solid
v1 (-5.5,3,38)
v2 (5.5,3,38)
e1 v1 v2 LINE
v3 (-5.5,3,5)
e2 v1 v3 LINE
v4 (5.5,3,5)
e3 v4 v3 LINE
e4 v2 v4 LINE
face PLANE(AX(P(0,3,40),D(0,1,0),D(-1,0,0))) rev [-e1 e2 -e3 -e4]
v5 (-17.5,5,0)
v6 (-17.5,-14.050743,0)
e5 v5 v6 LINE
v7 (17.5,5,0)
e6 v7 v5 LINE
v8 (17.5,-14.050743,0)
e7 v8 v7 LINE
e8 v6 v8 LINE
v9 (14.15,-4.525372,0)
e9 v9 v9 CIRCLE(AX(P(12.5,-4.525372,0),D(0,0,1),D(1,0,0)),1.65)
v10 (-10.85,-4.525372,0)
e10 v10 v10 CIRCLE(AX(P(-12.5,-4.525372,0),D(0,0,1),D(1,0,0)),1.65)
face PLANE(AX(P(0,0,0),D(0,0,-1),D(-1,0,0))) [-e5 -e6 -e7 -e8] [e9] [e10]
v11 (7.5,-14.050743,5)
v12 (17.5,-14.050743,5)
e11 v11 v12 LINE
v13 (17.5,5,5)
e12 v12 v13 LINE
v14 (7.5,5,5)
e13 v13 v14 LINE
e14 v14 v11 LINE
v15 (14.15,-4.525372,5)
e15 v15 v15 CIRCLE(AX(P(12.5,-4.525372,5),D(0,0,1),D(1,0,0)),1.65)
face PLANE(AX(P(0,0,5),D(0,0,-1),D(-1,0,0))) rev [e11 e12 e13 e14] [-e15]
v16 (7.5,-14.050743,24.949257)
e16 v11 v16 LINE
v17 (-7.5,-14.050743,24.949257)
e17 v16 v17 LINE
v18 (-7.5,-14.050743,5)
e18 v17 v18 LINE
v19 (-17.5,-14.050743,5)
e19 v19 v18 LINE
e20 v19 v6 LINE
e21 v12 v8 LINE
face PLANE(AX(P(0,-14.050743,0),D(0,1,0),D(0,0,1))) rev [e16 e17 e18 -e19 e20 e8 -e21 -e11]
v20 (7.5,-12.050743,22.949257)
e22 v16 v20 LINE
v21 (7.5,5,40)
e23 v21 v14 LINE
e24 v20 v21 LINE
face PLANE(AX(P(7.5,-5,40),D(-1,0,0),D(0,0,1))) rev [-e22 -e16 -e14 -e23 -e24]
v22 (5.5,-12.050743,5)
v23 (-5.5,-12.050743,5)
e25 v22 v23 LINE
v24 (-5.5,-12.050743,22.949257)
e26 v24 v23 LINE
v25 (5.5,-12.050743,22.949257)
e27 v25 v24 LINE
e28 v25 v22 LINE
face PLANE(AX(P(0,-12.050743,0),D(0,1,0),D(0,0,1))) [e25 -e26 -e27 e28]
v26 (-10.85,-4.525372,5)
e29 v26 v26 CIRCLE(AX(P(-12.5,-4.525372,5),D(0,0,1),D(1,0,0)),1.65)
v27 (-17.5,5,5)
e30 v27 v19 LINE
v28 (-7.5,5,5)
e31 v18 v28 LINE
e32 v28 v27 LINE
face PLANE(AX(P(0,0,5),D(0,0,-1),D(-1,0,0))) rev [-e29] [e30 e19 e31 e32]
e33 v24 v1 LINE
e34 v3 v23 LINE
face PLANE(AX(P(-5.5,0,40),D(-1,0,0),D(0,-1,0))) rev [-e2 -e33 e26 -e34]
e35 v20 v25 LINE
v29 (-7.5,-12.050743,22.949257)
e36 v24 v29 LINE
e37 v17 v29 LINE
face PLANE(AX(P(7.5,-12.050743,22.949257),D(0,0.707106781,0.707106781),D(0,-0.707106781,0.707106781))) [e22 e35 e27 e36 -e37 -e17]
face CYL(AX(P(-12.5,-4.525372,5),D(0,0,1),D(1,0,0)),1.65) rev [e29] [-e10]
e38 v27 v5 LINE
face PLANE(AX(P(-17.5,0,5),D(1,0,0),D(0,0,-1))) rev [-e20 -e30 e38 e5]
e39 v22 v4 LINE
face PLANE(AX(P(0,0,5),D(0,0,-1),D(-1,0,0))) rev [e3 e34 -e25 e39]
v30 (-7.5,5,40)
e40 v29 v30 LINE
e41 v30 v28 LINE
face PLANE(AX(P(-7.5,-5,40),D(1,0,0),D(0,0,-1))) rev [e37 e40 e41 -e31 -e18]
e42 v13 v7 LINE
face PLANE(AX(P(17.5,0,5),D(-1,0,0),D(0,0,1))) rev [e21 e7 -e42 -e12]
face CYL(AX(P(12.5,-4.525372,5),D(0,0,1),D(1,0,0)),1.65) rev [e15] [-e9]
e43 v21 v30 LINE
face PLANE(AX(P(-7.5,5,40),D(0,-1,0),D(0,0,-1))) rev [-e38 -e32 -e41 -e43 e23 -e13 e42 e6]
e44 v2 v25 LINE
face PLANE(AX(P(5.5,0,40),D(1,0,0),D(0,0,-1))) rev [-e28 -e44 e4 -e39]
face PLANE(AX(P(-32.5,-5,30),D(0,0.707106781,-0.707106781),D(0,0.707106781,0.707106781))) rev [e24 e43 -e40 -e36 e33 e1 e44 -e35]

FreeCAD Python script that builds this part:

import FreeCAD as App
import Part
import Sketcher
from FreeCAD import Vector
Q = App.Units.Quantity


def add_polygon(sketch, points):
    """Adds a closed chain of lines whose ends are joined by coincident constraints."""
    first, n = sketch.GeometryCount, len(points)
    for a, b in zip(points, points[1:] + points[:1]):
        sketch.addGeometry(Part.LineSegment(App.Vector(*a, 0), App.Vector(*b, 0)), False)
    for i in range(n):
        sketch.addConstraint(Sketcher.Constraint("Coincident", first + i, 2, first + (i + 1) % n, 1))

doc = App.newDocument("Part")
body = doc.addObject("PartDesign::Body", "Body")

# Sketch on XY plane
sketch1 = doc.addObject("Sketcher::SketchObject", "Sketch")
body.addObject(sketch1)
sketch1.AttachmentSupport = (doc.XY_Plane, [""])
sketch1.MapMode = "FlatFace"
add_polygon(sketch1, [(-8, 5), (-8, -5), (8, -5), (8, 5)])  # lines 0-3
sketch1.addConstraint(Sketcher.Constraint("Vertical", 0))
sketch1.addConstraint(Sketcher.Constraint("Horizontal", 1))
sketch1.addConstraint(Sketcher.Constraint("Vertical", 2))
sketch1.addConstraint(Sketcher.Constraint("Horizontal", 3))
sketch1.addConstraint(Sketcher.Constraint("Symmetric", 0, 2, 2, 2, -1, 1))
sketch1.addConstraint(Sketcher.Constraint("DistanceX", 1, 1, 1, 2, Q("15 mm")))
sketch1.addConstraint(Sketcher.Constraint("DistanceY", 0, 2, 0, 1, Q("10 mm")))
pad1 = doc.addObject("PartDesign::Pad", "Pad")
body.addObject(pad1)
pad1.Profile = sketch1
pad1.Length = 40

# Sketch on YZ plane
sketch2 = doc.addObject("Sketcher::SketchObject", "Sketch001")
body.addObject(sketch2)
sketch2.AttachmentSupport = (doc.YZ_Plane, [""])
sketch2.MapMode = "FlatFace"
sketch2.AttachmentOffset = App.Placement(Vector(0, 0, 7.5), App.Rotation())
add_polygon(sketch2, [(5, 40), (-5, 40), (-5, 30)])  # lines 0-2
sketch2.addConstraint(Sketcher.Constraint("Horizontal", 0))
sketch2.addConstraint(Sketcher.Constraint("Vertical", 1))
sketch2.addConstraint(Sketcher.Constraint("Equal", 0, 1))
sketch2.addConstraint(Sketcher.Constraint("DistanceX", 0, 2, 0, 1, Q("10 mm")))
sketch2.addConstraint(Sketcher.Constraint("DistanceX", 0, 2, -1, 1, Q("5 mm")))
sketch2.addConstraint(Sketcher.Constraint("DistanceY", -1, 1, 0, 2, Q("40 mm")))
pocket1 = doc.addObject("PartDesign::Pocket", "Pocket")
body.addObject(pocket1)
pocket1.Profile = sketch2
pocket1.Length = 40

# Sketch on YZ plane
sketch3 = doc.addObject("Sketcher::SketchObject", "Sketch002")
body.addObject(sketch3)
sketch3.AttachmentSupport = (doc.YZ_Plane, [""])
sketch3.MapMode = "FlatFace"
sketch3.AttachmentOffset = App.Placement(Vector(0, 0, -7.5), App.Rotation())
add_polygon(sketch3, [(-5, 0), (-12, 0), (-12, 23), (-5, 30)])  # lines 0-3
sketch3.addConstraint(Sketcher.Constraint("Horizontal", 0))
sketch3.addConstraint(Sketcher.Constraint("Vertical", 1))
sketch3.addConstraint(Sketcher.Constraint("Vertical", 3))
sketch3.addConstraint(Sketcher.Constraint("PointOnObject", 0, 2, -1))
sketch3.addConstraint(Sketcher.Constraint("DistanceY", 3, 2, 3, 1, Q("30 mm")))
sketch3.addConstraint(Sketcher.Constraint("Angle", 2, Q("45 deg")))
sketch3.addConstraint(Sketcher.Constraint("DistanceX", 2, 2, -1, 1, Q("5 mm")))
sketch3.addConstraint(Sketcher.Constraint("DistanceX", 0, 2, 0, 1, Q("7.050743 mm")))
pad2 = doc.addObject("PartDesign::Pad", "Pad001")
body.addObject(pad2)
pad2.Profile = sketch3
pad2.Length = 15

# Sketch on XZ plane
sketch4 = doc.addObject("Sketcher::SketchObject", "Sketch003")
body.addObject(sketch4)
sketch4.AttachmentSupport = (doc.XZ_Plane, [""])
sketch4.MapMode = "FlatFace"
sketch4.AttachmentOffset = App.Placement(Vector(0, 0, 12.050743), App.Rotation())
add_polygon(sketch4, [(8, 0), (8, 24), (-8, 24), (-8, 0)])  # lines 0-3
sketch4.addConstraint(Sketcher.Constraint("Vertical", 0))
sketch4.addConstraint(Sketcher.Constraint("Horizontal", 1))
sketch4.addConstraint(Sketcher.Constraint("Vertical", 2))
sketch4.addConstraint(Sketcher.Constraint("Horizontal", 3))
sketch4.addConstraint(Sketcher.Constraint("Symmetric", 2, 2, 3, 2, -1, 1))
sketch4.addConstraint(Sketcher.Constraint("DistanceX", 1, 2, 1, 1, Q("15 mm")))
sketch4.addConstraint(Sketcher.Constraint("DistanceY", 0, 1, 0, 2, Q("24.5 mm")))
pad3 = doc.addObject("PartDesign::Pad", "Pad002")
body.addObject(pad3)
pad3.Profile = sketch4
pad3.Length = 2

# Sketch on XY plane
sketch5 = doc.addObject("Sketcher::SketchObject", "Sketch004")
body.addObject(sketch5)
sketch5.AttachmentSupport = (doc.XY_Plane, [""])
sketch5.MapMode = "FlatFace"
add_polygon(sketch5, [(6, 3), (6, -12), (-6, -12), (-6, 3)])  # lines 0-3
sketch5.addConstraint(Sketcher.Constraint("Vertical", 0))
sketch5.addConstraint(Sketcher.Constraint("Horizontal", 1))
sketch5.addConstraint(Sketcher.Constraint("Vertical", 2))
sketch5.addConstraint(Sketcher.Constraint("Horizontal", 3))
sketch5.addConstraint(Sketcher.Constraint("DistanceX", 1, 2, 1, 1, Q("11 mm")))
sketch5.addConstraint(Sketcher.Constraint("DistanceY", -1, 1, 2, 2, Q("3 mm")))
sketch5.addConstraint(Sketcher.Constraint("DistanceX", -1, 1, 0, 2, Q("5.5 mm")))
sketch5.addConstraint(Sketcher.Constraint("DistanceY", 0, 2, 0, 1, Q("15.050743 mm")))
pocket2 = doc.addObject("PartDesign::Pocket", "Pocket001")
body.addObject(pocket2)
pocket2.Profile = sketch5
pocket2.Type = "ThroughAll"
pocket2.Reversed = True

# Sketch on XY plane
sketch6 = doc.addObject("Sketcher::SketchObject", "Sketch005")
body.addObject(sketch6)
sketch6.AttachmentSupport = (doc.XY_Plane, [""])
sketch6.MapMode = "FlatFace"
add_polygon(sketch6, [(18, 5), (18, -14), (-18, -14), (-18, 5)])  # lines 0-3
sketch6.addConstraint(Sketcher.Constraint("Vertical", 0))
sketch6.addConstraint(Sketcher.Constraint("Horizontal", 1))
sketch6.addConstraint(Sketcher.Constraint("Vertical", 2))
sketch6.addConstraint(Sketcher.Constraint("Horizontal", 3))
sketch6.addConstraint(Sketcher.Constraint("DistanceX", 1, 2, 1, 1, Q("35 mm")))
sketch6.addConstraint(Sketcher.Constraint("DistanceY", -1, 1, 2, 2, Q("5 mm")))
sketch6.addConstraint(Sketcher.Constraint("DistanceX", -1, 1, 0, 2, Q("17.5 mm")))
sketch6.addConstraint(Sketcher.Constraint("DistanceY", 0, 2, 0, 1, Q("19.050743 mm")))
pad4 = doc.addObject("PartDesign::Pad", "Pad003")
body.addObject(pad4)
pad4.Profile = sketch6
pad4.Length = 5

# Sketch on XY plane
sketch7 = doc.addObject("Sketcher::SketchObject", "Sketch006")
body.addObject(sketch7)
sketch7.AttachmentSupport = (doc.XY_Plane, [""])
sketch7.MapMode = "FlatFace"
sketch7.AttachmentOffset = App.Placement(Vector(0, 0, 5), App.Rotation())
sketch7.addGeometry(Part.Circle(Vector(-12.5, -4.5, 0), Vector(0, 0, 1), 1.6), False)
sketch7.addConstraint(Sketcher.Constraint("Diameter", 0, Q("3.3 mm")))
sketch7.addConstraint(Sketcher.Constraint("DistanceX", 0, 3, -1, 1, Q("12.5 mm")))
sketch7.addConstraint(Sketcher.Constraint("DistanceY", 0, 3, -1, 1, Q("4.525372 mm")))
doc.recompute()
hole = doc.addObject("PartDesign::Hole", "Hole")
body.addObject(hole)
hole.Profile = sketch7
hole.ThreadType = "None"
hole.Diameter = 3.3
hole.DepthType = "ThroughAll"

# Sketch on XY plane
sketch8 = doc.addObject("Sketcher::SketchObject", "Sketch007")
body.addObject(sketch8)
sketch8.AttachmentSupport = (doc.XY_Plane, [""])
sketch8.MapMode = "FlatFace"
sketch8.AttachmentOffset = App.Placement(Vector(0, 0, 5), App.Rotation())
sketch8.addGeometry(Part.Circle(Vector(12.5, -4.5, 0), Vector(0, 0, 1), 1.6), False)
sketch8.addConstraint(Sketcher.Constraint("Diameter", 0, Q("3.3 mm")))
sketch8.addConstraint(Sketcher.Constraint("DistanceX", -1, 1, 0, 3, Q("12.5 mm")))
sketch8.addConstraint(Sketcher.Constraint("DistanceY", 0, 3, -1, 1, Q("4.525372 mm")))
doc.recompute()
hole2 = doc.addObject("PartDesign::Hole", "Hole001")
body.addObject(hole2)
hole2.Profile = sketch8
hole2.ThreadType = "None"
hole2.Diameter = 3.3
hole2.DepthType = "ThroughAll"

# Sketch on YZ plane
sketch9 = doc.addObject("Sketcher::SketchObject", "Sketch008")
body.addObject(sketch9)
sketch9.AttachmentSupport = (doc.YZ_Plane, [""])
sketch9.MapMode = "FlatFace"
sketch9.AttachmentOffset = App.Placement(Vector(0, 0, -7.5), App.Rotation())
add_polygon(sketch9, [(-12.1, 22.9), (-14.1, 24.5), (-12.1, 24.5)])  # lines 0-2
sketch9.addConstraint(Sketcher.Constraint("Horizontal", 1))
sketch9.addConstraint(Sketcher.Constraint("Vertical", 2))
sketch9.addConstraint(Sketcher.Constraint("DistanceX", 1, 1, 1, 2, Q("2 mm")))
sketch9.addConstraint(Sketcher.Constraint("DistanceY", -1, 1, 0, 2, Q("24.5 mm")))
sketch9.addConstraint(Sketcher.Constraint("Distance", 0, Q("2.530772 mm")))
sketch9.addConstraint(Sketcher.Constraint("DistanceX", 0, 2, -1, 1, Q("14.050743 mm")))
pocket3 = doc.addObject("PartDesign::Pocket", "Pocket002")
body.addObject(pocket3)
pocket3.Profile = sketch9
pocket3.Type = "ThroughAll"
pocket3.Reversed = True

# Sketch on YZ plane
sketch10 = doc.addObject("Sketcher::SketchObject", "Sketch009")
body.addObject(sketch10)
sketch10.AttachmentSupport = (doc.YZ_Plane, [""])
sketch10.MapMode = "FlatFace"
sketch10.AttachmentOffset = App.Placement(Vector(0, 0, -7.5), App.Rotation())
add_polygon(sketch10, [(-12.1, 22.9), (-14.1, 22.9), (-14.1, 24.9)])  # lines 0-2
sketch10.addConstraint(Sketcher.Constraint("Horizontal", 0))
sketch10.addConstraint(Sketcher.Constraint("Vertical", 1))
sketch10.addConstraint(Sketcher.Constraint("Equal", 0, 1))
sketch10.addConstraint(Sketcher.Constraint("DistanceX", 0, 2, 0, 1, Q("2 mm")))
sketch10.addConstraint(Sketcher.Constraint("DistanceX", 0, 2, -1, 1, Q("14.050743 mm")))
sketch10.addConstraint(Sketcher.Constraint("DistanceY", -1, 1, 0, 2, Q("22.949257 mm")))
pad5 = doc.addObject("PartDesign::Pad", "Pad004")
body.addObject(pad5)
pad5.Profile = sketch10
pad5.Length = 15

doc.recompute()
